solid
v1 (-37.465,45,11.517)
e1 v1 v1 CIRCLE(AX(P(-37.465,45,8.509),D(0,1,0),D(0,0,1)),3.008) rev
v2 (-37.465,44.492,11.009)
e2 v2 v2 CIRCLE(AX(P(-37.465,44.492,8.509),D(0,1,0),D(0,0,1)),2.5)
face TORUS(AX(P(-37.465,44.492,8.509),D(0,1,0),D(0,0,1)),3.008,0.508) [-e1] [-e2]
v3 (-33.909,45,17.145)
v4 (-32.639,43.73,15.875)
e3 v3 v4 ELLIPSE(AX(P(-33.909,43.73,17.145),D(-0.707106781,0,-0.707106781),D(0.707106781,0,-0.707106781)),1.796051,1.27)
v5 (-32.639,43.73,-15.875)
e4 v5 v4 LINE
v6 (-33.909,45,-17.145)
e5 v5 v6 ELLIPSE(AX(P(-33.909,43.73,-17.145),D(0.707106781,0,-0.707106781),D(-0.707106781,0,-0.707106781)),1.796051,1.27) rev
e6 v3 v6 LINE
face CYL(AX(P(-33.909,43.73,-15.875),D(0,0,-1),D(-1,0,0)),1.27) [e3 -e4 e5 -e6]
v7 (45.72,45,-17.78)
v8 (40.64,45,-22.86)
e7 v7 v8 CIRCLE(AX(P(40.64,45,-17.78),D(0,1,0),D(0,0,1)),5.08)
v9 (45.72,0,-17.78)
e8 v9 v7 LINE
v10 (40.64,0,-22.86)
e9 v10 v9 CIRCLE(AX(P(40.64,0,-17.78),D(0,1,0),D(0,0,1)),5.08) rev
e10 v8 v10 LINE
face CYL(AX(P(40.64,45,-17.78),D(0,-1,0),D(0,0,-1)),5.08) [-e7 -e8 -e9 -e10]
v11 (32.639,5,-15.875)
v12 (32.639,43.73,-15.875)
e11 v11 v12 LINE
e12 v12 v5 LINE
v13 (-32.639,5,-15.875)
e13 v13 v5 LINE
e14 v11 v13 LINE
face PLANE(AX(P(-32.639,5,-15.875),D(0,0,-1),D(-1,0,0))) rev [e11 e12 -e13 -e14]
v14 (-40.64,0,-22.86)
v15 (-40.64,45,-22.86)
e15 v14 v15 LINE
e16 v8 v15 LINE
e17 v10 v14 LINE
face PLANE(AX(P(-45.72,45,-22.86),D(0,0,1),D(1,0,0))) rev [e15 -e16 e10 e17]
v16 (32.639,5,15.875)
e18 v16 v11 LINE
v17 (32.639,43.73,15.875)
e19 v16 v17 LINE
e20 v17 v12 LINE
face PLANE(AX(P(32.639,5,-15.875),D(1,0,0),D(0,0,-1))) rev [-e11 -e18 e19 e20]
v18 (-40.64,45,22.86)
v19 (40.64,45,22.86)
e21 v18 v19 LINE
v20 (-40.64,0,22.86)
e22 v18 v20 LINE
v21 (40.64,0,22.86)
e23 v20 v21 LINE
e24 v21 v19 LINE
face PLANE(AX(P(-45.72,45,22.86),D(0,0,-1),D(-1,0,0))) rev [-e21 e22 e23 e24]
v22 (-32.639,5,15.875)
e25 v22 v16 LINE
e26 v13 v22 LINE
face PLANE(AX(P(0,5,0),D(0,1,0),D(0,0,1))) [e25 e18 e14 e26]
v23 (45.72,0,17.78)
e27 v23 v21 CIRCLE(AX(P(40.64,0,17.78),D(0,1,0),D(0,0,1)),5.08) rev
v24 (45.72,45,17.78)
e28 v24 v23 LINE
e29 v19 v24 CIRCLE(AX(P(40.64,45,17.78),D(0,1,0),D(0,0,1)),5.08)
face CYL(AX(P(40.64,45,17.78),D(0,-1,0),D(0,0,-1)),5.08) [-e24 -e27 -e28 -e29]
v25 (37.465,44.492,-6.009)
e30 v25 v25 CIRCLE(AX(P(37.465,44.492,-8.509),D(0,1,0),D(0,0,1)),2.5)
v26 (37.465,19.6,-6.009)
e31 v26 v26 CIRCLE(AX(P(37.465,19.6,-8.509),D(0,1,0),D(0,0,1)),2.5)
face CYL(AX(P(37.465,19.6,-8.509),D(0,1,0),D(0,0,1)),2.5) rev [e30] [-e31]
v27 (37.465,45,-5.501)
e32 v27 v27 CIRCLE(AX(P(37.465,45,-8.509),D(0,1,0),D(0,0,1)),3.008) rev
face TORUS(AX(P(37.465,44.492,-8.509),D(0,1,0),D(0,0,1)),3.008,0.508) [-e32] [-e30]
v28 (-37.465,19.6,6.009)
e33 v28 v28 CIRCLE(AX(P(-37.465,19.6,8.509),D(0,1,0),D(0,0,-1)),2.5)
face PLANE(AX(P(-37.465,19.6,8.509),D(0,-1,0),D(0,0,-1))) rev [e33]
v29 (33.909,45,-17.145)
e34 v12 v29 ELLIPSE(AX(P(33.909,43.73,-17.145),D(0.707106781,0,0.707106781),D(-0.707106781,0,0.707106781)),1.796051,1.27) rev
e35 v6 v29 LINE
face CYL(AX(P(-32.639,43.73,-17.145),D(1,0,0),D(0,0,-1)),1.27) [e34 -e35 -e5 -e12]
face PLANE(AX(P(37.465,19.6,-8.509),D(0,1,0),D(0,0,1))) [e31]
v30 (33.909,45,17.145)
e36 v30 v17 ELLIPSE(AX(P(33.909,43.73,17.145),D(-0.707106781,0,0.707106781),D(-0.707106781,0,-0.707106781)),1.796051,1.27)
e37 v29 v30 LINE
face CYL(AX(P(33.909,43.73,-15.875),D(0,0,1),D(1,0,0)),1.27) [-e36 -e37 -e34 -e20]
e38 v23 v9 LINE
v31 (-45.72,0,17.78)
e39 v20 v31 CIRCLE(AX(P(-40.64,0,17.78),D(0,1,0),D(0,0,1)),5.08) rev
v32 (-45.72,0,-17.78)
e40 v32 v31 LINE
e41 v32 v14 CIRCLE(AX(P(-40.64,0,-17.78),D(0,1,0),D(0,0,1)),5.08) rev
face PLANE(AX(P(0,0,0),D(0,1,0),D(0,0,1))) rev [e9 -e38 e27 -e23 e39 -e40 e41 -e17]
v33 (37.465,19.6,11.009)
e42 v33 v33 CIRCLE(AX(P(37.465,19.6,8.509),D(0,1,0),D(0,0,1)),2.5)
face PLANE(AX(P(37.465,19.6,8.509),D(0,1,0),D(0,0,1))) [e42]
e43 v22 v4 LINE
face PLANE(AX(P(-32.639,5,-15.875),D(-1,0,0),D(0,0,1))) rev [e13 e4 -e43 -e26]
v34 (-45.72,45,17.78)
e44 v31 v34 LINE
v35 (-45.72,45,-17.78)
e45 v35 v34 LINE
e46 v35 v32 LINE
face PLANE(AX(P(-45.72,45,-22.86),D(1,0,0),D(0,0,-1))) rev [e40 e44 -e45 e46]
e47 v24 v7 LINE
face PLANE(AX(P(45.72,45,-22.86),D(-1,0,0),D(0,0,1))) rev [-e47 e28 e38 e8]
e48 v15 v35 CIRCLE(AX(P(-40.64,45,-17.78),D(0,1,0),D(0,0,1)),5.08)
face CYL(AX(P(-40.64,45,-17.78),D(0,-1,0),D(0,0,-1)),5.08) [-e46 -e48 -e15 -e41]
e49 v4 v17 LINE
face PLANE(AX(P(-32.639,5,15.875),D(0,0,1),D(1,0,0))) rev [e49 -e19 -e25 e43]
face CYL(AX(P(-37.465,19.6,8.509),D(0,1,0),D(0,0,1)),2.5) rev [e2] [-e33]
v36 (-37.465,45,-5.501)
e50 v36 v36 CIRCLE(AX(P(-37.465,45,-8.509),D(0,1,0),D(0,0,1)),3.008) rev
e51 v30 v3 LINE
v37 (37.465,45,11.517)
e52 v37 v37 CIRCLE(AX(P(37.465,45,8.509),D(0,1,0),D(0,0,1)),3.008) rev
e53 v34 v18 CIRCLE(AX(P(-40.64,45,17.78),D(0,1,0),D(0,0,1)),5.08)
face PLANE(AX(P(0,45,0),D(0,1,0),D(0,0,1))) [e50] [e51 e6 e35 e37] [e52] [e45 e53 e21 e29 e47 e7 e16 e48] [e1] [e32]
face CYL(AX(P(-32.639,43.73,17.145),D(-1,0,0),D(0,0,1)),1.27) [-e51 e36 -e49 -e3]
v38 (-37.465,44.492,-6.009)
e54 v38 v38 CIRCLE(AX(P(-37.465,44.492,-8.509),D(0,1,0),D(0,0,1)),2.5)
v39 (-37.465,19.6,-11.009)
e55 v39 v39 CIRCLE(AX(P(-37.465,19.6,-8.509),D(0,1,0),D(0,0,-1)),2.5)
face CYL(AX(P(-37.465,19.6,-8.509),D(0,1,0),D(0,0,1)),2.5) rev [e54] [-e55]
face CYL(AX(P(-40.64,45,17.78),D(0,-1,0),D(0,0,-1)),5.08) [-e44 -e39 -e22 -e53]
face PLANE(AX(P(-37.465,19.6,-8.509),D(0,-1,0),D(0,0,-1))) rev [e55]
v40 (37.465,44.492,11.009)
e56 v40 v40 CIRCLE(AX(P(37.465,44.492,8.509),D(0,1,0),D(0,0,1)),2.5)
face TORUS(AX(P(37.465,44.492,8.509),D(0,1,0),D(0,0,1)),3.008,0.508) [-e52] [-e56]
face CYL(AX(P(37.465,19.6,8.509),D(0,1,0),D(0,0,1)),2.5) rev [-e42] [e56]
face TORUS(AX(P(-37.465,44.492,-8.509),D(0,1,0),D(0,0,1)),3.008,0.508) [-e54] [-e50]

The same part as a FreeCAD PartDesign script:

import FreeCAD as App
import Part
import Sketcher
Q = App.Units.Quantity


def edges_at(feature, points):
    """Names of the edges that pass closest to the given points."""
    edges = feature.Shape.Edges
    near = lambda p: min(range(len(edges)), key=lambda i: edges[i].distToShape(Part.Vertex(*p))[0])
    return sorted({f"Edge{near(p) + 1}" for p in points})

doc = App.newDocument("Part")
body = doc.addObject("PartDesign::Body", "Body")

# Sketch on XZ plane
sketch1 = doc.addObject("Sketcher::SketchObject", "Sketch")
body.addObject(sketch1)
sketch1.AttachmentSupport = (doc.XZ_Plane, [""])
sketch1.MapMode = "FlatFace"
sketch1.addGeometry([
    Part.LineSegment(App.Vector(-45.72, -22.86, 0), App.Vector(-45.72, 22.86, 0)),
    Part.LineSegment(App.Vector(-45.72, 22.86, 0), App.Vector(45.72, 22.86, 0)),
    Part.LineSegment(App.Vector(45.72, 22.86, 0), App.Vector(45.72, -22.86, 0)),
    Part.LineSegment(App.Vector(45.72, -22.86, 0), App.Vector(-45.72, -22.86, 0)),
], False)
sketch1.addConstraint([
    Sketcher.Constraint("Coincident", 0, 2, 1, 1),
    Sketcher.Constraint("Coincident", 1, 2, 2, 1),
    Sketcher.Constraint("Coincident", 2, 2, 3, 1),
    Sketcher.Constraint("Coincident", 3, 2, 0, 1),
    Sketcher.Constraint("Vertical", 0),
    Sketcher.Constraint("Horizontal", 1),
    Sketcher.Constraint("Vertical", 2),
    Sketcher.Constraint("Horizontal", 3),
    Sketcher.Constraint("Symmetric", 0, 2, 2, 2, -1, 1),
    Sketcher.Constraint("DistanceX", 1, 1, 1, 2, Q("3.6 in")),
    Sketcher.Constraint("DistanceY", 0, 1, 0, 2, Q("1.8 in")),
])
pad1 = doc.addObject("PartDesign::Pad", "Pad")
body.addObject(pad1)
pad1.Profile = sketch1
pad1.Length = 45
pad1.Reversed = True

# Sketch on XZ plane
sketch2 = doc.addObject("Sketcher::SketchObject", "Sketch001")
body.addObject(sketch2)
sketch2.AttachmentSupport = (doc.XZ_Plane, [""])
sketch2.MapMode = "FlatFace"
sketch2.AttachmentOffset = App.Placement(App.Vector(0, 0, -45), App.Rotation())
sketch2.addGeometry([
    Part.LineSegment(App.Vector(-32.639, -15.875, 0), App.Vector(-32.639, 15.875, 0)),
    Part.LineSegment(App.Vector(-32.639, 15.875, 0), App.Vector(32.639, 15.875, 0)),
    Part.LineSegment(App.Vector(32.639, 15.875, 0), App.Vector(32.639, -15.875, 0)),
    Part.LineSegment(App.Vector(32.639, -15.875, 0), App.Vector(-32.639, -15.875, 0)),
], False)
sketch2.addConstraint([
    Sketcher.Constraint("Coincident", 0, 2, 1, 1),
    Sketcher.Constraint("Coincident", 1, 2, 2, 1),
    Sketcher.Constraint("Coincident", 2, 2, 3, 1),
    Sketcher.Constraint("Coincident", 3, 2, 0, 1),
    Sketcher.Constraint("Vertical", 0),
    Sketcher.Constraint("Horizontal", 1),
    Sketcher.Constraint("Vertical", 2),
    Sketcher.Constraint("Horizontal", 3),
    Sketcher.Constraint("Symmetric", 0, 2, 2, 2, -1, 1),
    Sketcher.Constraint("DistanceX", 1, 1, 1, 2, Q("2.57 in")),
    Sketcher.Constraint("DistanceY", 0, 1, 0, 2, Q("1.25 in")),
])
pocket1 = doc.addObject("PartDesign::Pocket", "Pocket")
body.addObject(pocket1)
pocket1.Profile = sketch2
pocket1.Length = 40
pocket1.Reversed = True

# Sketch on XZ plane
sketch3 = doc.addObject("Sketcher::SketchObject", "Sketch002")
body.addObject(sketch3)
sketch3.AttachmentSupport = (doc.XZ_Plane, [""])
sketch3.MapMode = "FlatFace"
sketch3.AttachmentOffset = App.Placement(App.Vector(0, 0, -45), App.Rotation())
sketch3.addGeometry([
    Part.Circle(App.Vector(37.465, -8.509, 0), App.Vector(0, 0, 1), 2.5),
    Part.Circle(App.Vector(37.465, 8.509, 0), App.Vector(0, 0, 1), 2.5),
    Part.Circle(App.Vector(-37.465, 8.509, 0), App.Vector(0, 0, 1), 2.5),
    Part.Circle(App.Vector(-37.465, -8.509, 0), App.Vector(0, 0, 1), 2.5),
], False)
sketch3.addConstraint([
    Sketcher.Constraint("Equal", 0, 1),
    Sketcher.Constraint("Equal", 1, 2),
    Sketcher.Constraint("Equal", 2, 3),
    Sketcher.Constraint("Symmetric", 0, 3, 2, 3, -1, 1),
    Sketcher.Constraint("Symmetric", 1, 3, 3, 3, -1, 1),
    Sketcher.Constraint("Symmetric", 1, 3, 2, 3, -2),
    Sketcher.Constraint("Diameter", 0, 5.0),
    Sketcher.Constraint("DistanceY", 0, 3, 1, 3, Q("0.67 in")),
    Sketcher.Constraint("DistanceX", 2, 3, 1, 3, Q("2.95 in")),
])
pocket2 = doc.addObject("PartDesign::Pocket", "Pocket001")
body.addObject(pocket2)
pocket2.Profile = sketch3
pocket2.Length = Q("1 in")
pocket2.Reversed = True
doc.recompute()

fillet = doc.addObject("PartDesign::Fillet", "Fillet")
body.addObject(fillet)
fillet.Base = (pocket2, edges_at(pocket2, [
    (45.72, 22.5, 22.86),
    (-45.72, 22.5, 22.86),
    (-45.72, 22.5, -22.86),
    (45.72, 22.5, -22.86),
]))
fillet.Radius = Q("0.2 in")
doc.recompute()

fillet2 = doc.addObject("PartDesign::Fillet", "Fillet001")
body.addObject(fillet2)
fillet2.Base = (fillet, edges_at(fillet, [
    (32.639, 45, 0),
    (0, 45, -15.875),
    (-32.639, 45, 0),
    (0, 45, 15.875),
]))
fillet2.Radius = Q("0.05 in")
doc.recompute()

fillet3 = doc.addObject("PartDesign::Fillet", "Fillet002")
body.addObject(fillet3)
fillet3.Base = (fillet2, edges_at(fillet2, [
    (-37.465, 45, -6.009),
    (-37.465, 45, 11.009),
    (37.465, 45, 6.009),
    (37.465, 45, -11.009),
]))
fillet3.Radius = Q("0.02 in")

doc.recompute()
